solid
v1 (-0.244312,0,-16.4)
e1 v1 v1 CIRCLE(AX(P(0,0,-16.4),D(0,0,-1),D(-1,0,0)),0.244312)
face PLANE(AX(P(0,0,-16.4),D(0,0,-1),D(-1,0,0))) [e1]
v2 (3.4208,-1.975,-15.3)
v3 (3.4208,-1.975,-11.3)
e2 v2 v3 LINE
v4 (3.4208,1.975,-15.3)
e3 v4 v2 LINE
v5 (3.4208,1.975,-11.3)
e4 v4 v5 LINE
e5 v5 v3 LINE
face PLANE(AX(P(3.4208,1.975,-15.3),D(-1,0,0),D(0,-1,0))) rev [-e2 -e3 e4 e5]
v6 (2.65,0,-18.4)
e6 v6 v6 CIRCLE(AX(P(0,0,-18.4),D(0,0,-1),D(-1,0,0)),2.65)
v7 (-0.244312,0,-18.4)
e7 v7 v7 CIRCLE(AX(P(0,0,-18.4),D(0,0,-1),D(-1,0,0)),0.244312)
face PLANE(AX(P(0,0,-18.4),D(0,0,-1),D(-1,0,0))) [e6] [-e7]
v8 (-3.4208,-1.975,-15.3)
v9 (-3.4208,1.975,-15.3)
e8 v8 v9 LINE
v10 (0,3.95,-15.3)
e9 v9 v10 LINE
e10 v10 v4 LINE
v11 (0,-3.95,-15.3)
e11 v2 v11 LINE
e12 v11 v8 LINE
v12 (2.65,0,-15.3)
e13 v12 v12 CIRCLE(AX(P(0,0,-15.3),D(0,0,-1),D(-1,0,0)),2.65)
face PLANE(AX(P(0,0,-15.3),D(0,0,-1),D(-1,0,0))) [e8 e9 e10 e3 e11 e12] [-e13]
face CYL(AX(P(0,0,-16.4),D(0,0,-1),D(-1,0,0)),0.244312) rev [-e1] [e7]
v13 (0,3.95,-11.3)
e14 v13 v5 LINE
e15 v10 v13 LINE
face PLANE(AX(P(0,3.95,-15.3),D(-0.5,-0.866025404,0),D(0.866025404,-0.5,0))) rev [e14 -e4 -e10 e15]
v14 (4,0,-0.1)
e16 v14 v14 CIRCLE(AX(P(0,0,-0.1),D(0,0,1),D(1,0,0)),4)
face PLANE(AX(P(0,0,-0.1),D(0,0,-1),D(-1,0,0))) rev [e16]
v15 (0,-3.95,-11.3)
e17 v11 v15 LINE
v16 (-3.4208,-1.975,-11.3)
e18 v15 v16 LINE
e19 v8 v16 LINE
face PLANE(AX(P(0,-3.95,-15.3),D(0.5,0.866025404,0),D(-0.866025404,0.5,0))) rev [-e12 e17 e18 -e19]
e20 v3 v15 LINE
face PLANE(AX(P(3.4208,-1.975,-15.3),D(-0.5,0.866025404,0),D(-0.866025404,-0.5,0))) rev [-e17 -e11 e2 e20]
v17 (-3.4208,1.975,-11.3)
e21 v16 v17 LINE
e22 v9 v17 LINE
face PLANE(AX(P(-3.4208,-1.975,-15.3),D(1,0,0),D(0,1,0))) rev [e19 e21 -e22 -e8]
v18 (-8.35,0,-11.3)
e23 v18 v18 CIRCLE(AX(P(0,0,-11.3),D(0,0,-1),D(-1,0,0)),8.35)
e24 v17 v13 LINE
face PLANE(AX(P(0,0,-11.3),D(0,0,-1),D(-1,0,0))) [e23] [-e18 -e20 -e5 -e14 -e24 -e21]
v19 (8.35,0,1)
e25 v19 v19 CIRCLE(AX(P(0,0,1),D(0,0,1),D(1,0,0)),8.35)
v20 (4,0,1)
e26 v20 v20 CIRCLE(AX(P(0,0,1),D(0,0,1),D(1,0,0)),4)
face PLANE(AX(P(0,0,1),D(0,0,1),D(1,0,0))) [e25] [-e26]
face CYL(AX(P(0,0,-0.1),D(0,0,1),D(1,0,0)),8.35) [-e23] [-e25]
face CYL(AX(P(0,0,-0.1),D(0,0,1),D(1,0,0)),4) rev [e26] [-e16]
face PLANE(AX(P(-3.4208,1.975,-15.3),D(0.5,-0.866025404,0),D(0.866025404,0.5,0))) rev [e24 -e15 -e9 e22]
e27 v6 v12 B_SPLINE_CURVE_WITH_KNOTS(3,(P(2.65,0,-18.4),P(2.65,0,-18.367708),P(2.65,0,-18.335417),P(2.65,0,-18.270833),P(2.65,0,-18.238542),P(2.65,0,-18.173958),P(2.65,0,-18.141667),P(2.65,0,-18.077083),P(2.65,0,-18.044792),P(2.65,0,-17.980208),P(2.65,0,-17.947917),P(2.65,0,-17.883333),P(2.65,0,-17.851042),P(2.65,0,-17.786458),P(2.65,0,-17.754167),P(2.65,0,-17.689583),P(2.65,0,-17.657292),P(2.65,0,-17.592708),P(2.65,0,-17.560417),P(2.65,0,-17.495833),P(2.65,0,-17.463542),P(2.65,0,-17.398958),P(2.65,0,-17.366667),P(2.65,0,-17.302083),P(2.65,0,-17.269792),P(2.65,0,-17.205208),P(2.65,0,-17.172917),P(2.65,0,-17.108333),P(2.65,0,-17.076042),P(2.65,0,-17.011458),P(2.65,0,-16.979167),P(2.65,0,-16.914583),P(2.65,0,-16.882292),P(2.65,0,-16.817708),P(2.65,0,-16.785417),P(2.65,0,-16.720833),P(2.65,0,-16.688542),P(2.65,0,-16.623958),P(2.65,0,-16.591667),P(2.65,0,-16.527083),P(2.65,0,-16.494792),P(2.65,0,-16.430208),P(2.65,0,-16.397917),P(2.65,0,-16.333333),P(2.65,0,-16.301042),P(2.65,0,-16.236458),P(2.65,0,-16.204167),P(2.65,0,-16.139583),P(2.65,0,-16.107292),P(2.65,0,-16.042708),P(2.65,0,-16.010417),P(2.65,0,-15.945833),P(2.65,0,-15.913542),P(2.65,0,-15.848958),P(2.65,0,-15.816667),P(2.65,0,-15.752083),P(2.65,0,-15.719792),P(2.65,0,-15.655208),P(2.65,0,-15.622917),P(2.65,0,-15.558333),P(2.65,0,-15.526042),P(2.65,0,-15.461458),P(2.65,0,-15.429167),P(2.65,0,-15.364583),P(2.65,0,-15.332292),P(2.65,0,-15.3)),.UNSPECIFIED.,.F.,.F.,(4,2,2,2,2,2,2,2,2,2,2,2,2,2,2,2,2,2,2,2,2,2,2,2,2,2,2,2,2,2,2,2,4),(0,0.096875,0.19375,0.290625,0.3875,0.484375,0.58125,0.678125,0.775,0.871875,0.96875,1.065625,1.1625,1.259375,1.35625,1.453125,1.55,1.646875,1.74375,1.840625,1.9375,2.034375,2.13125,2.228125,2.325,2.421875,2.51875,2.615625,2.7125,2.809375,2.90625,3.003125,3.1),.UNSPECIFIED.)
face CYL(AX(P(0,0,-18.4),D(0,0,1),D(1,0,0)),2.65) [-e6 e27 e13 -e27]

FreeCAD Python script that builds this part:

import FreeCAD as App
import Part
import Sketcher
Q = App.Units.Quantity


def add_polygon(sketch, points):
    """Adds a closed chain of lines whose ends are joined by coincident constraints."""
    first, n = sketch.GeometryCount, len(points)
    for a, b in zip(points, points[1:] + points[:1]):
        sketch.addGeometry(Part.LineSegment(App.Vector(*a, 0), App.Vector(*b, 0)), False)
    for i in range(n):
        sketch.addConstraint(Sketcher.Constraint("Coincident", first + i, 2, first + (i + 1) % n, 1))

doc = App.newDocument("Part")
body = doc.addObject("PartDesign::Body", "Body")

# Sketch on XY plane
sketch1 = body.newObject("Sketcher::SketchObject", "Sketch")
sketch1.AttachmentSupport = (doc.getObject("XY_Plane"), [""])
sketch1.MapMode = "FlatFace"
sketch1.addGeometry([
    Part.Circle(App.Vector(0, 0, 0), App.Vector(0, 0, 1), 8.3),
    Part.Circle(App.Vector(0, 0, 0), App.Vector(0, 0, 1), 4),
], False)
sketch1.addConstraint([
    Sketcher.Constraint("Coincident", 0, 3, -1, 1),
    Sketcher.Constraint("Coincident", 1, 3, -1, 1),
    Sketcher.Constraint("Diameter", 1, 8.0),
    Sketcher.Constraint("Diameter", 0, 16.7),
])
pad1 = body.newObject("PartDesign::Pad", "Pad")
pad1.Profile = sketch1
pad1.Type = "TwoLengths"
pad1.Length = 1
pad1.Length2 = 0.1

# Sketch on XY plane
sketch2 = body.newObject("Sketcher::SketchObject", "Sketch001")
sketch2.AttachmentSupport = (doc.getObject("XY_Plane"), [""])
sketch2.MapMode = "FlatFace"
sketch2.AttachmentOffset = App.Placement(App.Vector(0, 0, -0.1), App.Rotation())
sketch2.addGeometry(Part.Circle(App.Vector(0, 0, 0), App.Vector(0, 0, 1), 8), False)
sketch2.addConstraint([
    Sketcher.Constraint("Coincident", 0, 3, -1, 1),
    Sketcher.Constraint("Diameter", 0, 16.7),
])
pad2 = body.newObject("PartDesign::Pad", "Pad001")
pad2.Profile = sketch2
pad2.Length = 11.2
pad2.Reversed = True

# Sketch on XY plane
sketch3 = body.newObject("Sketcher::SketchObject", "Sketch002")
sketch3.AttachmentSupport = (doc.getObject("XY_Plane"), [""])
sketch3.MapMode = "FlatFace"
sketch3.AttachmentOffset = App.Placement(App.Vector(0, 0, -11.3), App.Rotation())
add_polygon(sketch3, [(0, 4), (3.4, 2), (3.4, -2), (0, -4), (-3.4, -2), (-3.4, 2)])  # lines 0-5
sketch3.addConstraint([
    Sketcher.Constraint("Vertical", 1),
    Sketcher.Constraint("Vertical", 4),
    Sketcher.Constraint("Symmetric", 0, 2, 3, 2, -1, 1),
    Sketcher.Constraint("Symmetric", 2, 2, 5, 2, -1, 1),
    Sketcher.Constraint("PointOnObject", 2, 2, -2),
    Sketcher.Constraint("Parallel", 2, 5),
    Sketcher.Constraint("Horizontal", 1, 2, 3, 2),
    Sketcher.Constraint("Angle", 0, Q("-30 deg")),
    Sketcher.Constraint("DistanceY", 1, 2, 1, 1, 3.95),
    Sketcher.Constraint("DistanceY", 2, 2, 5, 2, 7.9),
])
pad3 = body.newObject("PartDesign::Pad", "Pad002")
pad3.Profile = sketch3
pad3.Length = 4
pad3.Reversed = True

# Sketch on XY plane
sketch4 = body.newObject("Sketcher::SketchObject", "Sketch003")
sketch4.AttachmentSupport = (doc.getObject("XY_Plane"), [""])
sketch4.MapMode = "FlatFace"
sketch4.AttachmentOffset = App.Placement(App.Vector(0, 0, -15.3), App.Rotation())
sketch4.addGeometry(Part.Circle(App.Vector(0, 0, 0), App.Vector(0, 0, 1), 2.6), False)
sketch4.addConstraint([
    Sketcher.Constraint("Coincident", 0, 3, -1, 1),
    Sketcher.Constraint("Diameter", 0, 5.3),
])
pad4 = body.newObject("PartDesign::Pad", "Pad003")
pad4.Profile = sketch4
pad4.Length = 3.1
pad4.Reversed = True

# Sketch on XY plane
sketch5 = body.newObject("Sketcher::SketchObject", "Sketch004")
sketch5.AttachmentSupport = (doc.getObject("XY_Plane"), [""])
sketch5.MapMode = "FlatFace"
sketch5.AttachmentOffset = App.Placement(App.Vector(0, 0, -18.4), App.Rotation())
sketch5.addGeometry(Part.Circle(App.Vector(0, 0, 0), App.Vector(0, 0, 1), 0.24), False)
sketch5.addConstraint([
    Sketcher.Constraint("Coincident", 0, 3, -1, 1),
    Sketcher.Constraint("Diameter", 0, 0.488625),
])
pocket1 = body.newObject("PartDesign::Pocket", "Pocket")
pocket1.Profile = sketch5
pocket1.Length = 2
pocket1.Reversed = True

doc.recompute()
